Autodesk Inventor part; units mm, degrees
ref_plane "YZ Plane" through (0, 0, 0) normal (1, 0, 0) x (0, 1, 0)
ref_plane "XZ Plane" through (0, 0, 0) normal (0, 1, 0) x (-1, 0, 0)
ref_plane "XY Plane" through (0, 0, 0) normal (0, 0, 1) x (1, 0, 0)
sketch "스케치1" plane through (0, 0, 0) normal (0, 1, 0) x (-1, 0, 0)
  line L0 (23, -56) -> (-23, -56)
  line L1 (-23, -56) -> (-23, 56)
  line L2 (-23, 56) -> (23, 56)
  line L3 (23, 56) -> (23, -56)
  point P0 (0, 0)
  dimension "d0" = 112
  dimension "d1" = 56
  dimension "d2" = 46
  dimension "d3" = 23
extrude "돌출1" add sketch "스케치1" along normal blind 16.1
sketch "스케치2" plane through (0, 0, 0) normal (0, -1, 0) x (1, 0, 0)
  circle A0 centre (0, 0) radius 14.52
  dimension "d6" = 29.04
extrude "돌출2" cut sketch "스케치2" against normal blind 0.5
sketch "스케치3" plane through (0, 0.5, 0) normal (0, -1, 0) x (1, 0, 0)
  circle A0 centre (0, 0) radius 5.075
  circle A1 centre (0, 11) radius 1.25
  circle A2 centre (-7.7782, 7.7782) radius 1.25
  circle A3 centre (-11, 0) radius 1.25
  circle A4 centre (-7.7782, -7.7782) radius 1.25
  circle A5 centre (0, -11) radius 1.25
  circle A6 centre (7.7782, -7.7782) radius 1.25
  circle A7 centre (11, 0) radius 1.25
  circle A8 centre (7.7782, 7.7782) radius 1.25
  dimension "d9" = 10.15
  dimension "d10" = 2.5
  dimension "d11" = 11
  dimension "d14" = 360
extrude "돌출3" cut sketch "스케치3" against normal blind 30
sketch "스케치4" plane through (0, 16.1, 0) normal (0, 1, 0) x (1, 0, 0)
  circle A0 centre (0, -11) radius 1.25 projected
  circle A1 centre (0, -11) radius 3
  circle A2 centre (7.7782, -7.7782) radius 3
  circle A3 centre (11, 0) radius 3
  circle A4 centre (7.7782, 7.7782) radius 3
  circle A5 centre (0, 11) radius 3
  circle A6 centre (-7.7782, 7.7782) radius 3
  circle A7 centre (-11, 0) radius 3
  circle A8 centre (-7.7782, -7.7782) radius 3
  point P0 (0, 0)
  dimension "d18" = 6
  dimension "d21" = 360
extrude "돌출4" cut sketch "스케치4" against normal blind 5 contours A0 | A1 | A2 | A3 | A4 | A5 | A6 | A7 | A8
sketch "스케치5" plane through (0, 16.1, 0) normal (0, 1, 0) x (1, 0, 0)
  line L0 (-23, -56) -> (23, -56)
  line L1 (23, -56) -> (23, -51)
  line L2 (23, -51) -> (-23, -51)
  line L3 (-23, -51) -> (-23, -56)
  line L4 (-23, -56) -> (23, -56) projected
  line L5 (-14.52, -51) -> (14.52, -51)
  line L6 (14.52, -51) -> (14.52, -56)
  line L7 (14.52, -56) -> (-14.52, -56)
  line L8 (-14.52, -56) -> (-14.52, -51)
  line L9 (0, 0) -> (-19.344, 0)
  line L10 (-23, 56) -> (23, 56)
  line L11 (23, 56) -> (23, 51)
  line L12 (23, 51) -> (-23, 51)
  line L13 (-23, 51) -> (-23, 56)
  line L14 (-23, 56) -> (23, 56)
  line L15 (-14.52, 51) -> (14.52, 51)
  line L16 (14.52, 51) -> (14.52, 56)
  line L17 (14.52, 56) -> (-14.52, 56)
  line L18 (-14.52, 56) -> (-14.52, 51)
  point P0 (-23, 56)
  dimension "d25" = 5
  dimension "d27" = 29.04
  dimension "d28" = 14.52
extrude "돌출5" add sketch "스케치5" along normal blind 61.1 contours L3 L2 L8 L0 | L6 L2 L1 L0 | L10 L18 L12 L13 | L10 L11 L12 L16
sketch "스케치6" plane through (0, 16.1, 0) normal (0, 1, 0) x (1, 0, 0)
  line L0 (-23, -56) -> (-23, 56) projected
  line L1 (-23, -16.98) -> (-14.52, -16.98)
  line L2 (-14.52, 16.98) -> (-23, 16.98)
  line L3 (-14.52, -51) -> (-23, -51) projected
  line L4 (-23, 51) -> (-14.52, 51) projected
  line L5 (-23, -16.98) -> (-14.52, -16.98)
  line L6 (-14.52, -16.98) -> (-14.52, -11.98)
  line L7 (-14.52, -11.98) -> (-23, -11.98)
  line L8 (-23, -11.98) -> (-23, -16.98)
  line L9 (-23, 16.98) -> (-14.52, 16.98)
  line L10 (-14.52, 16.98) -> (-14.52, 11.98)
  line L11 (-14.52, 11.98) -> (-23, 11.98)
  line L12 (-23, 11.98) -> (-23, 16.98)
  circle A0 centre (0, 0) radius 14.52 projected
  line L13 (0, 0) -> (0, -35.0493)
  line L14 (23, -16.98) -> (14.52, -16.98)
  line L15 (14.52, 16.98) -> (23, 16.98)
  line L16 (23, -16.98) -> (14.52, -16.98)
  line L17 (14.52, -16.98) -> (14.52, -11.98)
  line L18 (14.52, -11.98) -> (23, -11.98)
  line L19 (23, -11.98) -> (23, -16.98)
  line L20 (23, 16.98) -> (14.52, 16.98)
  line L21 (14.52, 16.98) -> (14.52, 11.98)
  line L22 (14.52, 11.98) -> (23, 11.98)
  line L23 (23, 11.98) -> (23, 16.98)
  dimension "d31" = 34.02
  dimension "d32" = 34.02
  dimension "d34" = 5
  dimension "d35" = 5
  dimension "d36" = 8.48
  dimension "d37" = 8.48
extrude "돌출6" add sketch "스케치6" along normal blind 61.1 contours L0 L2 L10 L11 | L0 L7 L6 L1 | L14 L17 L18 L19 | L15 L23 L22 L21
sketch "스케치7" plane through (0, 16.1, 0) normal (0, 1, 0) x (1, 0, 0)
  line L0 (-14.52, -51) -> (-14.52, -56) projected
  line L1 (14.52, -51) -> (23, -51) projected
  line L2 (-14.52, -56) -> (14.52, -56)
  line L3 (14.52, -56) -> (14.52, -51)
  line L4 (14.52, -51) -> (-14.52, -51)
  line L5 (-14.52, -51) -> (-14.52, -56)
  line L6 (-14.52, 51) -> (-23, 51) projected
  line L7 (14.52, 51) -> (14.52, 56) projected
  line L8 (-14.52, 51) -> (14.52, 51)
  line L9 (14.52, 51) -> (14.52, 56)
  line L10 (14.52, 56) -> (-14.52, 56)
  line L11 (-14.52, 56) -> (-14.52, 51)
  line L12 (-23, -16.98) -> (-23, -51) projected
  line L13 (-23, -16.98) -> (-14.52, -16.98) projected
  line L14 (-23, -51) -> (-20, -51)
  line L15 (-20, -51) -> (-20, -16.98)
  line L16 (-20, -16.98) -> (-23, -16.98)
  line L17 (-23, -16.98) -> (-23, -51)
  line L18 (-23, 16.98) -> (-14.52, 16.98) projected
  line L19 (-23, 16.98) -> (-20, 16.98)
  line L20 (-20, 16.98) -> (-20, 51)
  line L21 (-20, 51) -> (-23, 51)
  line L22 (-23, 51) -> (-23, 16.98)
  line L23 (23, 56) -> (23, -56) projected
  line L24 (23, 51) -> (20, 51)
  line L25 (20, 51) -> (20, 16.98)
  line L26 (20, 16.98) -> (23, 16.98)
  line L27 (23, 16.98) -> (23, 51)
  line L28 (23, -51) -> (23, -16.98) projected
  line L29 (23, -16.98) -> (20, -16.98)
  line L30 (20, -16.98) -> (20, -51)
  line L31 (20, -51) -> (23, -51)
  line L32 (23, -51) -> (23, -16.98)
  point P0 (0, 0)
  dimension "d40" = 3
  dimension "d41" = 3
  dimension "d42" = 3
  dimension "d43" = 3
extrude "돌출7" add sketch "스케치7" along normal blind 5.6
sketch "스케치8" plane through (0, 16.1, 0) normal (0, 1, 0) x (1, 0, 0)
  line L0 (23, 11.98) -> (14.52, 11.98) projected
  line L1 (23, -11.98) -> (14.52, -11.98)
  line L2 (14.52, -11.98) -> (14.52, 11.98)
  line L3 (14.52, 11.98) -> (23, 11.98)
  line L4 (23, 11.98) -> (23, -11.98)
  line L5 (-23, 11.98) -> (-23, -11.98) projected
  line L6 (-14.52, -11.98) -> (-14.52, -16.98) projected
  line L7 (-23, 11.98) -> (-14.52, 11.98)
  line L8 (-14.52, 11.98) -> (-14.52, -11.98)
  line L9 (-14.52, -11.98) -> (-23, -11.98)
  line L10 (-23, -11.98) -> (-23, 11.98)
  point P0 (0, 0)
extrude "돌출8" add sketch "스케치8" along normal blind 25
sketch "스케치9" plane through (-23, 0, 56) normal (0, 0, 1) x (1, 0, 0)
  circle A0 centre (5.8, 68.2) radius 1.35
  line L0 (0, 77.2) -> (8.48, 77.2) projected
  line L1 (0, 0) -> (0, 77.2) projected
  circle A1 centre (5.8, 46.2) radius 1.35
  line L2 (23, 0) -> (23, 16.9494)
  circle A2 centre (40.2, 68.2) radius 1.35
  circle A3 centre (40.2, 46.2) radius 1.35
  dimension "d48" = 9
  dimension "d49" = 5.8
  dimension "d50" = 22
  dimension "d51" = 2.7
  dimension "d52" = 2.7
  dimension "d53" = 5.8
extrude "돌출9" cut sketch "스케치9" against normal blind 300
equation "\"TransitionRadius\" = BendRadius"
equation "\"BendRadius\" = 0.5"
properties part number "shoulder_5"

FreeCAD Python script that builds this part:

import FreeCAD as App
import Part
import Sketcher


def add_polygon(sketch, points):
    """Adds a closed chain of lines whose ends are joined by coincident constraints."""
    first, n = sketch.GeometryCount, len(points)
    for a, b in zip(points, points[1:] + points[:1]):
        sketch.addGeometry(Part.LineSegment(App.Vector(*a, 0), App.Vector(*b, 0)), False)
    for i in range(n):
        sketch.addConstraint(Sketcher.Constraint("Coincident", first + i, 2, first + (i + 1) % n, 1))

doc = App.newDocument("Part")
body = doc.addObject("PartDesign::Body", "Body")

# Sketch on XZ plane
sketch1 = doc.addObject("Sketcher::SketchObject", "Sketch")
body.addObject(sketch1)
sketch1.AttachmentSupport = (doc.XZ_Plane, [""])
sketch1.MapMode = "FlatFace"
add_polygon(sketch1, [(23, -56), (-23, -56), (-23, 56), (23, 56)])  # lines 0-3
sketch1.addConstraint([
    Sketcher.Constraint("Horizontal", 0),
    Sketcher.Constraint("Vertical", 1),
    Sketcher.Constraint("Horizontal", 2),
    Sketcher.Constraint("Vertical", 3),
    Sketcher.Constraint("Symmetric", 0, 2, 2, 2, -1, 1),
    Sketcher.Constraint("DistanceX", 0, 2, 0, 1, 46.0),
    Sketcher.Constraint("DistanceY", 1, 1, 1, 2, 112.0),
])
pad1 = doc.addObject("PartDesign::Pad", "Pad")
body.addObject(pad1)
pad1.Profile = sketch1
pad1.Length = 16.1
pad1.Reversed = True

# Sketch on XZ plane
sketch2 = doc.addObject("Sketcher::SketchObject", "Sketch001")
body.addObject(sketch2)
sketch2.AttachmentSupport = (doc.XZ_Plane, [""])
sketch2.MapMode = "FlatFace"
sketch2.addGeometry(Part.Circle(App.Vector(0, 0, 0), App.Vector(0, 0, 1), 14.52), False)
sketch2.addConstraint([
    Sketcher.Constraint("Coincident", 0, 3, -1, 1),
    Sketcher.Constraint("Diameter", 0, 29.04),
])
pocket1 = doc.addObject("PartDesign::Pocket", "Pocket")
body.addObject(pocket1)
pocket1.Profile = sketch2
pocket1.Length = 0.5

# Sketch on XZ plane
sketch3 = doc.addObject("Sketcher::SketchObject", "Sketch002")
body.addObject(sketch3)
sketch3.AttachmentSupport = (doc.XZ_Plane, [""])
sketch3.MapMode = "FlatFace"
sketch3.AttachmentOffset = App.Placement(App.Vector(0, 0, -0.5), App.Rotation())
sketch3.addGeometry([
    Part.Circle(App.Vector(0, 0, 0), App.Vector(0, 0, 1), 5.075),  # 0
    Part.Circle(App.Vector(0, 11, 0), App.Vector(0, 0, 1), 1.25),  # 1
    Part.Circle(App.Vector(-7.7782, 7.7782, 0), App.Vector(0, 0, 1), 1.25),  # 2
    Part.Circle(App.Vector(-11, 0, 0), App.Vector(0, 0, 1), 1.25),  # 3
    Part.Circle(App.Vector(-7.7782, -7.7782, 0), App.Vector(0, 0, 1), 1.25),  # 4
    Part.Circle(App.Vector(0, -11, 0), App.Vector(0, 0, 1), 1.25),  # 5
    Part.Circle(App.Vector(7.7782, -7.7782, 0), App.Vector(0, 0, 1), 1.25),  # 6
    Part.Circle(App.Vector(11, 0, 0), App.Vector(0, 0, 1), 1.25),  # 7
    Part.Circle(App.Vector(7.7782, 7.7782, 0), App.Vector(0, 0, 1), 1.25),  # 8
], False)
sketch3.addConstraint([
    Sketcher.Constraint("Coincident", 0, 3, -1, 1),
    Sketcher.Constraint("Equal", 1, 2),
    Sketcher.Constraint("Equal", 2, 3),
    Sketcher.Constraint("Equal", 3, 4),
    Sketcher.Constraint("Equal", 4, 5),
    Sketcher.Constraint("Equal", 5, 6),
    Sketcher.Constraint("Equal", 6, 7),
    Sketcher.Constraint("Equal", 7, 8),
    Sketcher.Constraint("Symmetric", 1, 3, 5, 3, -1, 1),
    Sketcher.Constraint("Symmetric", 2, 3, 6, 3, -1, 1),
    Sketcher.Constraint("Symmetric", 3, 3, 7, 3, -1, 1),
    Sketcher.Constraint("Symmetric", 4, 3, 8, 3, -1, 1),
    Sketcher.Constraint("Symmetric", 4, 3, 6, 3, -2),
    Sketcher.Constraint("PointOnObject", 1, 3, -2),
    Sketcher.Constraint("PointOnObject", 3, 3, -1),
    Sketcher.Constraint("Diameter", 1, 2.5),
    Sketcher.Constraint("Diameter", 0, 10.15),
    Sketcher.Constraint("DistanceY", -1, 1, 1, 3, 11.0),
    Sketcher.Constraint("DistanceX", 3, 3, -1, 1, 11.0),
    Sketcher.Constraint("DistanceX", 2, 3, -1, 1, 7.7782),
    Sketcher.Constraint("DistanceY", -1, 1, 2, 3, 7.7782),
])
pocket2 = doc.addObject("PartDesign::Pocket", "Pocket001")
body.addObject(pocket2)
pocket2.Profile = sketch3
pocket2.Length = 30

# Sketch on XZ plane
sketch4 = doc.addObject("Sketcher::SketchObject", "Sketch003")
body.addObject(sketch4)
sketch4.AttachmentSupport = (doc.XZ_Plane, [""])
sketch4.MapMode = "FlatFace"
sketch4.AttachmentOffset = App.Placement(App.Vector(0, 0, -16.1), App.Rotation())
sketch4.addGeometry([
    Part.Circle(App.Vector(0, 11, 0), App.Vector(0, 0, 1), 3),  # 0
    Part.Circle(App.Vector(7.7782, 7.7782, 0), App.Vector(0, 0, 1), 3),  # 1
    Part.Circle(App.Vector(11, 0, 0), App.Vector(0, 0, 1), 3),  # 2
    Part.Circle(App.Vector(7.7782, -7.7782, 0), App.Vector(0, 0, 1), 3),  # 3
    Part.Circle(App.Vector(0, -11, 0), App.Vector(0, 0, 1), 3),  # 4
    Part.Circle(App.Vector(-7.7782, -7.7782, 0), App.Vector(0, 0, 1), 3),  # 5
    Part.Circle(App.Vector(-11, 0, 0), App.Vector(0, 0, 1), 3),  # 6
    Part.Circle(App.Vector(-7.7782, 7.7782, 0), App.Vector(0, 0, 1), 3),  # 7
], False)
sketch4.addConstraint([
    Sketcher.Constraint("Equal", 0, 1),
    Sketcher.Constraint("Equal", 1, 2),
    Sketcher.Constraint("Equal", 2, 3),
    Sketcher.Constraint("Equal", 3, 4),
    Sketcher.Constraint("Equal", 4, 5),
    Sketcher.Constraint("Equal", 5, 6),
    Sketcher.Constraint("Equal", 6, 7),
    Sketcher.Constraint("Symmetric", 0, 3, 4, 3, -1, 1),
    Sketcher.Constraint("Symmetric", 1, 3, 5, 3, -1, 1),
    Sketcher.Constraint("Symmetric", 2, 3, 6, 3, -1, 1),
    Sketcher.Constraint("Symmetric", 3, 3, 7, 3, -1, 1),
    Sketcher.Constraint("Symmetric", 3, 3, 5, 3, -2),
    Sketcher.Constraint("PointOnObject", 0, 3, -2),
    Sketcher.Constraint("PointOnObject", 2, 3, -1),
    Sketcher.Constraint("Diameter", 0, 6.0),
    Sketcher.Constraint("DistanceY", -1, 1, 0, 3, 11.0),
    Sketcher.Constraint("DistanceX", -1, 1, 2, 3, 11.0),
    Sketcher.Constraint("DistanceX", -1, 1, 1, 3, 7.7782),
    Sketcher.Constraint("DistanceY", -1, 1, 1, 3, 7.7782),
])
pocket3 = doc.addObject("PartDesign::Pocket", "Pocket002")
body.addObject(pocket3)
pocket3.Profile = sketch4
pocket3.Length = 5
pocket3.Reversed = True

# Sketch on XZ plane
sketch5 = doc.addObject("Sketcher::SketchObject", "Sketch004")
body.addObject(sketch5)
sketch5.AttachmentSupport = (doc.XZ_Plane, [""])
sketch5.MapMode = "FlatFace"
sketch5.AttachmentOffset = App.Placement(App.Vector(0, 0, -16.1), App.Rotation())
add_polygon(sketch5, [(-23, 51), (-23, 56), (-14.52, 56), (-14.52, 51)])  # lines 0-3
add_polygon(sketch5, [(14.52, 51), (14.52, 56), (23, 56), (23, 51)])  # lines 4-7
add_polygon(sketch5, [(-14.52, -56), (-23, -56), (-23, -51), (-14.52, -51)])  # lines 8-11
add_polygon(sketch5, [(23, -56), (14.52, -56), (14.52, -51), (23, -51)])  # lines 12-15
sketch5.addConstraint([
    Sketcher.Constraint("Vertical", 0),
    Sketcher.Constraint("Horizontal", 1),
    Sketcher.Constraint("Vertical", 2),
    Sketcher.Constraint("Horizontal", 3),
    Sketcher.Constraint("Vertical", 4),
    Sketcher.Constraint("Horizontal", 5),
    Sketcher.Constraint("Vertical", 6),
    Sketcher.Constraint("Horizontal", 7),
    Sketcher.Constraint("Horizontal", 8),
    Sketcher.Constraint("Vertical", 9),
    Sketcher.Constraint("Horizontal", 10),
    Sketcher.Constraint("Vertical", 11),
    Sketcher.Constraint("Horizontal", 12),
    Sketcher.Constraint("Vertical", 13),
    Sketcher.Constraint("Horizontal", 14),
    Sketcher.Constraint("Vertical", 15),
    Sketcher.Constraint("Symmetric", 5, 2, 8, 2, -1, 1),
    Sketcher.Constraint("Symmetric", 7, 2, 10, 2, -1, 1),
    Sketcher.Constraint("Symmetric", 1, 2, 12, 2, -1, 1),
    Sketcher.Constraint("Symmetric", 3, 2, 14, 2, -1, 1),
    Sketcher.Constraint("Symmetric", 1, 2, 4, 2, -2),
    Sketcher.Constraint("Symmetric", 3, 2, 6, 2, -2),
    Sketcher.Constraint("DistanceY", 0, 1, 0, 2, 5.0),
    Sketcher.Constraint("DistanceX", 1, 2, -1, 1, 14.52),
    Sketcher.Constraint("DistanceX", 0, 2, -1, 1, 23.0),
    Sketcher.Constraint("DistanceY", -1, 1, 0, 2, 56.0),
])
pad2 = doc.addObject("PartDesign::Pad", "Pad001")
body.addObject(pad2)
pad2.Profile = sketch5
pad2.Length = 61.1
pad2.Reversed = True

# Sketch on XZ plane
sketch6 = doc.addObject("Sketcher::SketchObject", "Sketch005")
body.addObject(sketch6)
sketch6.AttachmentSupport = (doc.XZ_Plane, [""])
sketch6.MapMode = "FlatFace"
sketch6.AttachmentOffset = App.Placement(App.Vector(0, 0, -16.1), App.Rotation())
add_polygon(sketch6, [(-23, -16.98), (-23, -11.98), (-14.52, -11.98), (-14.52, -16.98)])  # lines 0-3
add_polygon(sketch6, [(-23, 11.98), (-23, 16.98), (-14.52, 16.98), (-14.52, 11.98)])  # lines 4-7
add_polygon(sketch6, [(14.52, 16.98), (23, 16.98), (23, 11.98), (14.52, 11.98)])  # lines 8-11
add_polygon(sketch6, [(23, -16.98), (14.52, -16.98), (14.52, -11.98), (23, -11.98)])  # lines 12-15
sketch6.addConstraint([
    Sketcher.Constraint("Vertical", 0),
    Sketcher.Constraint("Horizontal", 1),
    Sketcher.Constraint("Vertical", 2),
    Sketcher.Constraint("Horizontal", 3),
    Sketcher.Constraint("Vertical", 4),
    Sketcher.Constraint("Horizontal", 5),
    Sketcher.Constraint("Vertical", 6),
    Sketcher.Constraint("Horizontal", 7),
    Sketcher.Constraint("Horizontal", 8),
    Sketcher.Constraint("Vertical", 9),
    Sketcher.Constraint("Horizontal", 10),
    Sketcher.Constraint("Vertical", 11),
    Sketcher.Constraint("Horizontal", 12),
    Sketcher.Constraint("Vertical", 13),
    Sketcher.Constraint("Horizontal", 14),
    Sketcher.Constraint("Vertical", 15),
    Sketcher.Constraint("Symmetric", 3, 2, 8, 2, -1, 1),
    Sketcher.Constraint("Symmetric", 1, 2, 10, 2, -1, 1),
    Sketcher.Constraint("Symmetric", 5, 2, 12, 2, -1, 1),
    Sketcher.Constraint("Symmetric", 7, 2, 14, 2, -1, 1),
    Sketcher.Constraint("Symmetric", 4, 2, 8, 2, -2),
    Sketcher.Constraint("Symmetric", 6, 2, 10, 2, -2),
    Sketcher.Constraint("DistanceY", 0, 1, 0, 2, 5.0),
    Sketcher.Constraint("DistanceX", 1, 1, 1, 2, 8.48),
    Sketcher.Constraint("DistanceX", 0, 2, -1, 1, 23.0),
    Sketcher.Constraint("DistanceY", 0, 2, -1, 1, 11.98),
])
pad3 = doc.addObject("PartDesign::Pad", "Pad002")
body.addObject(pad3)
pad3.Profile = sketch6
pad3.Length = 61.1
pad3.Reversed = True

# Sketch on XZ plane
sketch7 = doc.addObject("Sketcher::SketchObject", "Sketch006")
body.addObject(sketch7)
sketch7.AttachmentSupport = (doc.XZ_Plane, [""])
sketch7.MapMode = "FlatFace"
sketch7.AttachmentOffset = App.Placement(App.Vector(0, 0, -16.1), App.Rotation())
add_polygon(sketch7, [(14.52, 51), (-14.52, 51), (-14.52, 56), (14.52, 56)])  # lines 0-3
add_polygon(sketch7, [(20, -16.98), (23, -16.98), (23, -51), (20, -51)])  # lines 4-7
add_polygon(sketch7, [(20, 16.98), (20, 51), (23, 51), (23, 16.98)])  # lines 8-11
add_polygon(sketch7, [(-20, -16.98), (-20, -51), (-23, -51), (-23, -16.98)])  # lines 12-15
add_polygon(sketch7, [(-14.52, -56), (-14.52, -51), (14.52, -51), (14.52, -56)])  # lines 16-19
add_polygon(sketch7, [(-20, 16.98), (-23, 16.98), (-23, 51), (-20, 51)])  # lines 20-23
sketch7.addConstraint([
    Sketcher.Constraint("Horizontal", 0),
    Sketcher.Constraint("Vertical", 1),
    Sketcher.Constraint("Horizontal", 2),
    Sketcher.Constraint("Vertical", 3),
    Sketcher.Constraint("Horizontal", 4),
    Sketcher.Constraint("Vertical", 5),
    Sketcher.Constraint("Horizontal", 6),
    Sketcher.Constraint("Vertical", 7),
    Sketcher.Constraint("Vertical", 8),
    Sketcher.Constraint("Horizontal", 9),
    Sketcher.Constraint("Vertical", 10),
    Sketcher.Constraint("Horizontal", 11),
    Sketcher.Constraint("Vertical", 12),
    Sketcher.Constraint("Horizontal", 13),
    Sketcher.Constraint("Vertical", 14),
    Sketcher.Constraint("Horizontal", 15),
    Sketcher.Constraint("Vertical", 16),
    Sketcher.Constraint("Horizontal", 17),
    Sketcher.Constraint("Vertical", 18),
    Sketcher.Constraint("Horizontal", 19),
    Sketcher.Constraint("Horizontal", 20),
    Sketcher.Constraint("Vertical", 21),
    Sketcher.Constraint("Horizontal", 22),
    Sketcher.Constraint("Vertical", 23),
    Sketcher.Constraint("Symmetric", 8, 2, 12, 2, -1, 1),
    Sketcher.Constraint("Symmetric", 10, 2, 14, 2, -1, 1),
    Sketcher.Constraint("Symmetric", 3, 2, 16, 2, -1, 1),
    Sketcher.Constraint("Symmetric", 1, 2, 18, 2, -1, 1),
    Sketcher.Constraint("Symmetric", 4, 2, 20, 2, -1, 1),
    Sketcher.Constraint("Symmetric", 6, 2, 22, 2, -1, 1),
    Sketcher.Constraint("Symmetric", 6, 2, 12, 2, -2),
    Sketcher.Constraint("Symmetric", 4, 2, 14, 2, -2),
    Sketcher.Constraint("Horizontal", 3, 2, 8, 2),
    Sketcher.Constraint("Vertical", 1, 2, 16, 2),
    Sketcher.Constraint("DistanceX", 4, 1, 4, 2, 3.0),
    Sketcher.Constraint("DistanceY", 1, 1, 1, 2, 5.0),
    Sketcher.Constraint("DistanceY", -1, 1, 0, 2, 51.0),
    Sketcher.Constraint("DistanceX", -1, 1, 4, 2, 23.0),
    Sketcher.Constraint("DistanceX", 0, 2, 0, 1, 29.04),
    Sketcher.Constraint("DistanceY", 5, 2, 5, 1, 34.02),
])
pad4 = doc.addObject("PartDesign::Pad", "Pad003")
body.addObject(pad4)
pad4.Profile = sketch7
pad4.Length = 5.6
pad4.Reversed = True

# Sketch on XZ plane
sketch8 = doc.addObject("Sketcher::SketchObject", "Sketch007")
body.addObject(sketch8)
sketch8.AttachmentSupport = (doc.XZ_Plane, [""])
sketch8.MapMode = "FlatFace"
sketch8.AttachmentOffset = App.Placement(App.Vector(0, 0, -16.1), App.Rotation())
add_polygon(sketch8, [(23, 11.98), (23, -11.98), (14.52, -11.98), (14.52, 11.98)])  # lines 0-3
add_polygon(sketch8, [(-14.52, -11.98), (-23, -11.98), (-23, 11.98), (-14.52, 11.98)])  # lines 4-7
sketch8.addConstraint([
    Sketcher.Constraint("Vertical", 0),
    Sketcher.Constraint("Horizontal", 1),
    Sketcher.Constraint("Vertical", 2),
    Sketcher.Constraint("Horizontal", 3),
    Sketcher.Constraint("Horizontal", 4),
    Sketcher.Constraint("Vertical", 5),
    Sketcher.Constraint("Horizontal", 6),
    Sketcher.Constraint("Vertical", 7),
    Sketcher.Constraint("Symmetric", 3, 2, 4, 2, -1, 1),
    Sketcher.Constraint("Symmetric", 1, 2, 6, 2, -1, 1),
    Sketcher.Constraint("Horizontal", 1, 2, 4, 2),
    Sketcher.Constraint("DistanceX", -1, 1, 0, 2, 23.0),
    Sketcher.Constraint("DistanceX", 1, 2, 1, 1, 8.48),
    Sketcher.Constraint("DistanceY", 0, 2, 0, 1, 23.96),
])
pad5 = doc.addObject("PartDesign::Pad", "Pad004")
body.addObject(pad5)
pad5.Profile = sketch8
pad5.Length = 25
pad5.Reversed = True

# Sketch on XY plane
sketch9 = doc.addObject("Sketcher::SketchObject", "Sketch008")
body.addObject(sketch9)
sketch9.AttachmentSupport = (doc.XY_Plane, [""])
sketch9.MapMode = "FlatFace"
sketch9.AttachmentOffset = App.Placement(App.Vector(0, 0, 56), App.Rotation())
sketch9.addGeometry([
    Part.Circle(App.Vector(-17.2, 68.2, 0), App.Vector(0, 0, 1), 1.35),
    Part.Circle(App.Vector(-17.2, 46.2, 0), App.Vector(0, 0, 1), 1.35),
    Part.Circle(App.Vector(17.2, 68.2, 0), App.Vector(0, 0, 1), 1.35),
    Part.Circle(App.Vector(17.2, 46.2, 0), App.Vector(0, 0, 1), 1.35),
], False)
sketch9.addConstraint([
    Sketcher.Constraint("Equal", 0, 1),
    Sketcher.Constraint("Equal", 1, 2),
    Sketcher.Constraint("Equal", 2, 3),
    Sketcher.Constraint("Symmetric", 0, 3, 2, 3, -2),
    Sketcher.Constraint("Symmetric", 1, 3, 3, 3, -2),
    Sketcher.Constraint("Vertical", 0, 3, 1, 3),
    Sketcher.Constraint("Diameter", 0, 2.7),
    Sketcher.Constraint("DistanceY", 1, 3, 0, 3, 22.0),
    Sketcher.Constraint("DistanceX", 0, 3, -1, 1, 17.2),
    Sketcher.Constraint("DistanceY", -1, 1, 0, 3, 68.2),
])
pocket4 = doc.addObject("PartDesign::Pocket", "Pocket003")
body.addObject(pocket4)
pocket4.Profile = sketch9
pocket4.Length = 300

doc.recompute()
